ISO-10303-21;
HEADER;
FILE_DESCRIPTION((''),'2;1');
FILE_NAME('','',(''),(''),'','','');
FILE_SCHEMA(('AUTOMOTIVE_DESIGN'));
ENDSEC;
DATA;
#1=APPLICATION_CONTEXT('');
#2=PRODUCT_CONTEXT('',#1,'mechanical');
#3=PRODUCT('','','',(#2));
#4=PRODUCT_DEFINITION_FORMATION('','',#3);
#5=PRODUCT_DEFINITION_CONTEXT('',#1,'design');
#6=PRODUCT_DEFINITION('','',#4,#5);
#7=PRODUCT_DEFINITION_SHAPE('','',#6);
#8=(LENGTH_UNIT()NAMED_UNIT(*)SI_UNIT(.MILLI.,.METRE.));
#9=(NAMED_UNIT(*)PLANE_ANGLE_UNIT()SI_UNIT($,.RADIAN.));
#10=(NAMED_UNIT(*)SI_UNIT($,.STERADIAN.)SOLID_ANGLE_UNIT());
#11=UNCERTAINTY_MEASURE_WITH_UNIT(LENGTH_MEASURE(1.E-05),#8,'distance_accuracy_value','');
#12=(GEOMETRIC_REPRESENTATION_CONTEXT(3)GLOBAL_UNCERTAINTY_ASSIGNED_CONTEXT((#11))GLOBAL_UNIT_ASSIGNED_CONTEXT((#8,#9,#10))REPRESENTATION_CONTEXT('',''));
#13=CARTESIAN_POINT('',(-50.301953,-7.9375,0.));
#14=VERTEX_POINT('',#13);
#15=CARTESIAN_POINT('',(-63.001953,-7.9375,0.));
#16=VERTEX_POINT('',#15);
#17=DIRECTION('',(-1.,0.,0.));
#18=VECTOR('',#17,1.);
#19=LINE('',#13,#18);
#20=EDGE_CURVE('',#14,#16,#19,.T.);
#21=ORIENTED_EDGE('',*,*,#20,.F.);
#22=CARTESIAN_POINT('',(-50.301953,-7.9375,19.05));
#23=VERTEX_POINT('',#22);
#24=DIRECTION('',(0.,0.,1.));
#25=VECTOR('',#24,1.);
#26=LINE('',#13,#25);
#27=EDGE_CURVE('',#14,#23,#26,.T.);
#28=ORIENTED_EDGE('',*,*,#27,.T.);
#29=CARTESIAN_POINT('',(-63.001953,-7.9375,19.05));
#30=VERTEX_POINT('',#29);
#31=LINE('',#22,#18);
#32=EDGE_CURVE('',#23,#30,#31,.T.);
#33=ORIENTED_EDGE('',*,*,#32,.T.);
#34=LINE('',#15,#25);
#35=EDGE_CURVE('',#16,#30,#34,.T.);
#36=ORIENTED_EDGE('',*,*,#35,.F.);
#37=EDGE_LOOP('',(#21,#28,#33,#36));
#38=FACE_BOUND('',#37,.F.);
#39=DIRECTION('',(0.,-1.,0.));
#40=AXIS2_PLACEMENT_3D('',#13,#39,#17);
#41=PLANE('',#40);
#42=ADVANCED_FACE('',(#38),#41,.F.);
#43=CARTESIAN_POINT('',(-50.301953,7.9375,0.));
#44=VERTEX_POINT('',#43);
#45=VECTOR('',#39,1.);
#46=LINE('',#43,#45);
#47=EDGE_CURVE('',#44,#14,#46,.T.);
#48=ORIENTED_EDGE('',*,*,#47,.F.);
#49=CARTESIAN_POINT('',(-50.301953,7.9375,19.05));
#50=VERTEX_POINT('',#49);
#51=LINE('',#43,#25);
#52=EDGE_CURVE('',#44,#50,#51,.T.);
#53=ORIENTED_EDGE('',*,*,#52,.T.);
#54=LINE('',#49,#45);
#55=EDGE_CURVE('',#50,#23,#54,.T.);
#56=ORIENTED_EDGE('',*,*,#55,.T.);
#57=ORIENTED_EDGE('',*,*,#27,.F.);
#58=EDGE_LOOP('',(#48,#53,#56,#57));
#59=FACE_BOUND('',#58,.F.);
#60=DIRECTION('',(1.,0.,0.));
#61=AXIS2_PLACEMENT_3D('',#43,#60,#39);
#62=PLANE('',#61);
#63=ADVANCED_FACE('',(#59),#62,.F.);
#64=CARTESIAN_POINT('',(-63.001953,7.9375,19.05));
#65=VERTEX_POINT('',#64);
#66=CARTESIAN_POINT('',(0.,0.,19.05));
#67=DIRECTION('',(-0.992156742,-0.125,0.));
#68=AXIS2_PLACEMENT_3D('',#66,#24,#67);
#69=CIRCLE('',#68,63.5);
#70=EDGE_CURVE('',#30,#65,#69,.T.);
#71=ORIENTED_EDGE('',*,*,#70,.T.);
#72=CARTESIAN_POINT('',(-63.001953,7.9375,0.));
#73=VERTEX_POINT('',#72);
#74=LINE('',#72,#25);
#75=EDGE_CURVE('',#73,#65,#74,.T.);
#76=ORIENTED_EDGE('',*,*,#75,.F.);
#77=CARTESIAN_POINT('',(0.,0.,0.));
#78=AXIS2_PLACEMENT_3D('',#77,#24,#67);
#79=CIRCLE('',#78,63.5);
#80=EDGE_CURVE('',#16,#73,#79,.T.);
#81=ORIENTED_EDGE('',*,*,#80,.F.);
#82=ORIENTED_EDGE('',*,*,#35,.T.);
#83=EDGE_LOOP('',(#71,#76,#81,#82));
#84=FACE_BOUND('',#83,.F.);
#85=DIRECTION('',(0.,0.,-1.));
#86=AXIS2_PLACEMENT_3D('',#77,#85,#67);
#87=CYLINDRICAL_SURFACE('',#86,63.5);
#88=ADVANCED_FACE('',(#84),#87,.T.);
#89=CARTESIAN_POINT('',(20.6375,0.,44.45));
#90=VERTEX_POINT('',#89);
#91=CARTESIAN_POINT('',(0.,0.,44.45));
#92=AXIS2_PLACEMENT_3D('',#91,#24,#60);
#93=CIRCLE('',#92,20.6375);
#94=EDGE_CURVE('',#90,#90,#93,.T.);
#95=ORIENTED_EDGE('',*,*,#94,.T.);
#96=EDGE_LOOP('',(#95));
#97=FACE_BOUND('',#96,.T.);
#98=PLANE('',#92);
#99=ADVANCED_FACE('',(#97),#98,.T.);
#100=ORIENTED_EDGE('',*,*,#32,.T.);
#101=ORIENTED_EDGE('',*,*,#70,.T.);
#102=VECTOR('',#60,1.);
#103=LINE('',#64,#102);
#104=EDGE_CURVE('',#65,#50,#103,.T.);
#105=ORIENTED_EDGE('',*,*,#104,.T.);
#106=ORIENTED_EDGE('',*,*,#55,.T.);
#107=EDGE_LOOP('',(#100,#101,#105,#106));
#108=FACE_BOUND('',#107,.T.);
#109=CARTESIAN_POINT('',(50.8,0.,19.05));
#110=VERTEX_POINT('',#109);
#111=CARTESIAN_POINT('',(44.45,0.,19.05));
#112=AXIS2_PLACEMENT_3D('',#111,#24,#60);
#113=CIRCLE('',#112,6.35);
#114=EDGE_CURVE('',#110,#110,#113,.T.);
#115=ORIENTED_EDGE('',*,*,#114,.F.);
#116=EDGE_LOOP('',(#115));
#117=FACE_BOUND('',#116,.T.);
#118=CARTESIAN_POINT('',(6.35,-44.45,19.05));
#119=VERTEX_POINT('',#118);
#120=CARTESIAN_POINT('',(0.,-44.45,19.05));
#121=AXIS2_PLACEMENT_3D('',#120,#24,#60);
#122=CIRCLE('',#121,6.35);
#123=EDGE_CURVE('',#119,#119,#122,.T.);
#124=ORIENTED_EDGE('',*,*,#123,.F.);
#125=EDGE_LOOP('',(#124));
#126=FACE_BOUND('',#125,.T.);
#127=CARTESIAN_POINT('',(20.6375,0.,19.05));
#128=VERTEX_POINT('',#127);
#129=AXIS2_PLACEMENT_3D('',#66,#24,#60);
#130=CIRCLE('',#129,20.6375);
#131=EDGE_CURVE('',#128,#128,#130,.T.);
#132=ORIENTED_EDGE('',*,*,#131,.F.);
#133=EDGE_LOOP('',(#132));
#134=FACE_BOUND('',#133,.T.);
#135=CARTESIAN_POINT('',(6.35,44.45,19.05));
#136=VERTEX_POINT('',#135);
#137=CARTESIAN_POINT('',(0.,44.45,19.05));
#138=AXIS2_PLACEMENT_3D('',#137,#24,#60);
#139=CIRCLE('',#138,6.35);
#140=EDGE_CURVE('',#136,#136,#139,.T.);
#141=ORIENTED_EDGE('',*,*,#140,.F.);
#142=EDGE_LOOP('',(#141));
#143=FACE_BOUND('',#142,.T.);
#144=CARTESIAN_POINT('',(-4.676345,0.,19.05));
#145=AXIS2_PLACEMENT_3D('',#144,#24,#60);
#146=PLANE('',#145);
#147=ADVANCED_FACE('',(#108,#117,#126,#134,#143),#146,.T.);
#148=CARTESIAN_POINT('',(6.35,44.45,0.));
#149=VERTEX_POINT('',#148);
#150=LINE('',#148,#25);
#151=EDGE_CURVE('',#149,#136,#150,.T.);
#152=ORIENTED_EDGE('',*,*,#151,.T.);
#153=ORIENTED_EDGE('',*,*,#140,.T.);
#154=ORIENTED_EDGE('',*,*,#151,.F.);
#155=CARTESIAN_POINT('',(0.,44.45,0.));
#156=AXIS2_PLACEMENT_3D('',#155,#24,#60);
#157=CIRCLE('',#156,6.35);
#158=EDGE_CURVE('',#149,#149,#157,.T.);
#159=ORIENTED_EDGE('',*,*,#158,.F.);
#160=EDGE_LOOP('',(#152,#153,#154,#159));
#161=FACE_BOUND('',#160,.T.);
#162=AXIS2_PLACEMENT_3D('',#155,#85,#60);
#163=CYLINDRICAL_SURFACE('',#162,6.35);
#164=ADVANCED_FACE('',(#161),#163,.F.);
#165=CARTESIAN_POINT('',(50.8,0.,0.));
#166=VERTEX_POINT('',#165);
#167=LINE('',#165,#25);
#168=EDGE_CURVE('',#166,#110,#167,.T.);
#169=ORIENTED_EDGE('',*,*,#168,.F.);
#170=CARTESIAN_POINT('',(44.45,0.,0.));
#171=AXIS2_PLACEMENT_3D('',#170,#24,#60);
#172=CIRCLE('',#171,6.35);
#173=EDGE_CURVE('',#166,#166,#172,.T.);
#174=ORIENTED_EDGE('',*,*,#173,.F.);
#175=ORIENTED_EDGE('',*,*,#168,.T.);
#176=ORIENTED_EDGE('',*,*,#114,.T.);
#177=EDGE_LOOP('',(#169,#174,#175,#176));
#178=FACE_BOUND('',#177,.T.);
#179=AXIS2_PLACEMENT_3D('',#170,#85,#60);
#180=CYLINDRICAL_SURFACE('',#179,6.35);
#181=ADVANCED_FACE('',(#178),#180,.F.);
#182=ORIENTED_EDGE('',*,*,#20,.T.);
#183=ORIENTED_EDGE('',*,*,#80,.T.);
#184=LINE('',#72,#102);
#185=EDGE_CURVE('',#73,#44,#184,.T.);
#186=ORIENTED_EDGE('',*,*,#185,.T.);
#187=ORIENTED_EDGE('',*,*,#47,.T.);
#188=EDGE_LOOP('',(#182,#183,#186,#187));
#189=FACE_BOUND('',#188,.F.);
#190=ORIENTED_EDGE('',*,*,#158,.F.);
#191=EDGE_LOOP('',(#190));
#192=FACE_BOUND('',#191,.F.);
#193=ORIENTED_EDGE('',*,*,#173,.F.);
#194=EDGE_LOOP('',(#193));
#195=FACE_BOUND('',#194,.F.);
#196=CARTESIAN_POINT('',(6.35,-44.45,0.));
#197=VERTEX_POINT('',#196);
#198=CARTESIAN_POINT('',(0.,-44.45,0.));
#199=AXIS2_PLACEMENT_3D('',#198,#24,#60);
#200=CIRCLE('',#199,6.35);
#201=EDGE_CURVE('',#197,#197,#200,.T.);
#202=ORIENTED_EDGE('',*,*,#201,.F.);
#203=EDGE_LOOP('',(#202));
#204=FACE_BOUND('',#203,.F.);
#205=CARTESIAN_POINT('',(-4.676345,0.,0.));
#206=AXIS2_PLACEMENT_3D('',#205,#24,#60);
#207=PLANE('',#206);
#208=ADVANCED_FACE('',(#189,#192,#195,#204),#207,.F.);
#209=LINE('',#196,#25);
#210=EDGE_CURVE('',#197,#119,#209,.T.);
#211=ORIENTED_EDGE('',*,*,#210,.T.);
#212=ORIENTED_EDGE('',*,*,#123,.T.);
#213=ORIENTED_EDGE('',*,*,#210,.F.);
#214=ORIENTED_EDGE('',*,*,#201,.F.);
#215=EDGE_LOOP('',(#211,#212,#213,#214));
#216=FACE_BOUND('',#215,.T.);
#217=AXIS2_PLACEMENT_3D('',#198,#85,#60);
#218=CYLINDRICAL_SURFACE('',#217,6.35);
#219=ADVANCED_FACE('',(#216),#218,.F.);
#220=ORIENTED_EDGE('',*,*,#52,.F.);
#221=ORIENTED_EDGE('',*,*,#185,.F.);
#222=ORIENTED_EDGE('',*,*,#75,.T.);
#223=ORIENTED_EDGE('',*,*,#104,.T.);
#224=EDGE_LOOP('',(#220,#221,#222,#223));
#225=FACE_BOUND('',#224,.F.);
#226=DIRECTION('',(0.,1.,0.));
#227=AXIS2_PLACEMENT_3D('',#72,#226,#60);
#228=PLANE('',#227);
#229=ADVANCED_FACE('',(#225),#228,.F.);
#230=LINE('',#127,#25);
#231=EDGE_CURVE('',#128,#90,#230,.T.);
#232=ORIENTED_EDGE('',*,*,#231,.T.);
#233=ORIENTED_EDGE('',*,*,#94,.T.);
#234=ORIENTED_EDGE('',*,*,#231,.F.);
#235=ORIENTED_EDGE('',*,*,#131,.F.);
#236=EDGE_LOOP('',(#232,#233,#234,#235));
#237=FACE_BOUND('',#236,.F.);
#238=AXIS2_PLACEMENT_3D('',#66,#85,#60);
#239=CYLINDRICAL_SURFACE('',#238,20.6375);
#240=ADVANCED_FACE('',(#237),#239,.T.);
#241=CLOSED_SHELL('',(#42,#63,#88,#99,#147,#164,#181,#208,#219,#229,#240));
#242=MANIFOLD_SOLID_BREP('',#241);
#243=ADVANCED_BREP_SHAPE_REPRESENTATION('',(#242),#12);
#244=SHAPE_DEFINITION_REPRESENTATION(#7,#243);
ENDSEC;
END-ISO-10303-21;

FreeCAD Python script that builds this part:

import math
import FreeCAD as App
import Part
import Sketcher

V = App.Vector
Q = App.Units.Quantity

doc = App.newDocument("Part")
body = doc.addObject("PartDesign::Body", "Body")

# Sketch on XY plane
sketch1 = body.newObject("Sketcher::SketchObject", "Sketch")
sketch1.AttachmentSupport = (doc.getObject("XY_Plane"), [""])
sketch1.MapMode = "FlatFace"
sketch1.addGeometry(Part.LineSegment(V(-50, -8, 0), V(-63, -8, 0)), False)
sketch1.addGeometry(Part.ArcOfCircle(Part.Circle(V(0, 0, 0), V(0, 0, 1), 63), math.radians(-173), math.radians(173)), False)
sketch1.addGeometry(Part.LineSegment(V(-63, 8, 0), V(-50, 8, 0)), False)
sketch1.addGeometry(Part.LineSegment(V(-50, 8, 0), V(-50, -8, 0)), False)
sketch1.addGeometry(Part.Circle(V(0, -44, 0), V(0, 0, 1), 6), False)
sketch1.addGeometry(Part.Circle(V(0, 44, 0), V(0, 0, 1), 6), False)
sketch1.addGeometry(Part.Circle(V(44, 0, 0), V(0, 0, 1), 6), False)
sketch1.addConstraint(Sketcher.Constraint("Coincident", 0, 2, 1, 1))
sketch1.addConstraint(Sketcher.Constraint("Coincident", 1, 2, 2, 1))
sketch1.addConstraint(Sketcher.Constraint("Coincident", 2, 2, 3, 1))
sketch1.addConstraint(Sketcher.Constraint("Coincident", 3, 2, 0, 1))
sketch1.addConstraint(Sketcher.Constraint("Horizontal", 0))
sketch1.addConstraint(Sketcher.Constraint("Horizontal", 2))
sketch1.addConstraint(Sketcher.Constraint("Vertical", 3))
sketch1.addConstraint(Sketcher.Constraint("Coincident", 1, 3, -1, 1))
sketch1.addConstraint(Sketcher.Constraint("Equal", 4, 5))
sketch1.addConstraint(Sketcher.Constraint("Equal", 5, 6))
sketch1.addConstraint(Sketcher.Constraint("Symmetric", 4, 3, 5, 3, -1, 1))
sketch1.addConstraint(Sketcher.Constraint("PointOnObject", 4, 3, -2))
sketch1.addConstraint(Sketcher.Constraint("PointOnObject", 6, 3, -1))
sketch1.addConstraint(Sketcher.Constraint("Vertical", 0, 2, 1, 2))
sketch1.addConstraint(Sketcher.Constraint("Diameter", 4, Q("0.5 in")))
sketch1.addConstraint(Sketcher.Constraint("Radius", 1, Q("2.5 in")))
sketch1.addConstraint(Sketcher.Constraint("DistanceX", 0, 2, 0, 1, Q("0.5 in")))
sketch1.addConstraint(Sketcher.Constraint("DistanceY", 4, 3, 5, 3, Q("3.5 in")))
sketch1.addConstraint(Sketcher.Constraint("DistanceY", 3, 2, 3, 1, Q("0.625 in")))
sketch1.addConstraint(Sketcher.Constraint("DistanceX", -1, 1, 6, 3, Q("1.75 in")))
pad1 = body.newObject("PartDesign::Pad", "Pad")
pad1.Profile = sketch1
pad1.Length = Q("0.75 in")

# Sketch on XY plane
sketch2 = body.newObject("Sketcher::SketchObject", "Sketch001")
sketch2.AttachmentSupport = (doc.getObject("XY_Plane"), [""])
sketch2.MapMode = "FlatFace"
sketch2.AttachmentOffset = App.Placement(V(0, 0, 0.75 * 25.4), App.Rotation())
sketch2.addGeometry(Part.Circle(V(0, 0, 0), V(0, 0, 1), 21), False)
sketch2.addConstraint(Sketcher.Constraint("Coincident", 0, 3, -1, 1))
sketch2.addConstraint(Sketcher.Constraint("Diameter", 0, Q("1.625 in")))
pad2 = body.newObject("PartDesign::Pad", "Pad001")
pad2.Profile = sketch2
pad2.Length = Q("1 in")

doc.recompute()
